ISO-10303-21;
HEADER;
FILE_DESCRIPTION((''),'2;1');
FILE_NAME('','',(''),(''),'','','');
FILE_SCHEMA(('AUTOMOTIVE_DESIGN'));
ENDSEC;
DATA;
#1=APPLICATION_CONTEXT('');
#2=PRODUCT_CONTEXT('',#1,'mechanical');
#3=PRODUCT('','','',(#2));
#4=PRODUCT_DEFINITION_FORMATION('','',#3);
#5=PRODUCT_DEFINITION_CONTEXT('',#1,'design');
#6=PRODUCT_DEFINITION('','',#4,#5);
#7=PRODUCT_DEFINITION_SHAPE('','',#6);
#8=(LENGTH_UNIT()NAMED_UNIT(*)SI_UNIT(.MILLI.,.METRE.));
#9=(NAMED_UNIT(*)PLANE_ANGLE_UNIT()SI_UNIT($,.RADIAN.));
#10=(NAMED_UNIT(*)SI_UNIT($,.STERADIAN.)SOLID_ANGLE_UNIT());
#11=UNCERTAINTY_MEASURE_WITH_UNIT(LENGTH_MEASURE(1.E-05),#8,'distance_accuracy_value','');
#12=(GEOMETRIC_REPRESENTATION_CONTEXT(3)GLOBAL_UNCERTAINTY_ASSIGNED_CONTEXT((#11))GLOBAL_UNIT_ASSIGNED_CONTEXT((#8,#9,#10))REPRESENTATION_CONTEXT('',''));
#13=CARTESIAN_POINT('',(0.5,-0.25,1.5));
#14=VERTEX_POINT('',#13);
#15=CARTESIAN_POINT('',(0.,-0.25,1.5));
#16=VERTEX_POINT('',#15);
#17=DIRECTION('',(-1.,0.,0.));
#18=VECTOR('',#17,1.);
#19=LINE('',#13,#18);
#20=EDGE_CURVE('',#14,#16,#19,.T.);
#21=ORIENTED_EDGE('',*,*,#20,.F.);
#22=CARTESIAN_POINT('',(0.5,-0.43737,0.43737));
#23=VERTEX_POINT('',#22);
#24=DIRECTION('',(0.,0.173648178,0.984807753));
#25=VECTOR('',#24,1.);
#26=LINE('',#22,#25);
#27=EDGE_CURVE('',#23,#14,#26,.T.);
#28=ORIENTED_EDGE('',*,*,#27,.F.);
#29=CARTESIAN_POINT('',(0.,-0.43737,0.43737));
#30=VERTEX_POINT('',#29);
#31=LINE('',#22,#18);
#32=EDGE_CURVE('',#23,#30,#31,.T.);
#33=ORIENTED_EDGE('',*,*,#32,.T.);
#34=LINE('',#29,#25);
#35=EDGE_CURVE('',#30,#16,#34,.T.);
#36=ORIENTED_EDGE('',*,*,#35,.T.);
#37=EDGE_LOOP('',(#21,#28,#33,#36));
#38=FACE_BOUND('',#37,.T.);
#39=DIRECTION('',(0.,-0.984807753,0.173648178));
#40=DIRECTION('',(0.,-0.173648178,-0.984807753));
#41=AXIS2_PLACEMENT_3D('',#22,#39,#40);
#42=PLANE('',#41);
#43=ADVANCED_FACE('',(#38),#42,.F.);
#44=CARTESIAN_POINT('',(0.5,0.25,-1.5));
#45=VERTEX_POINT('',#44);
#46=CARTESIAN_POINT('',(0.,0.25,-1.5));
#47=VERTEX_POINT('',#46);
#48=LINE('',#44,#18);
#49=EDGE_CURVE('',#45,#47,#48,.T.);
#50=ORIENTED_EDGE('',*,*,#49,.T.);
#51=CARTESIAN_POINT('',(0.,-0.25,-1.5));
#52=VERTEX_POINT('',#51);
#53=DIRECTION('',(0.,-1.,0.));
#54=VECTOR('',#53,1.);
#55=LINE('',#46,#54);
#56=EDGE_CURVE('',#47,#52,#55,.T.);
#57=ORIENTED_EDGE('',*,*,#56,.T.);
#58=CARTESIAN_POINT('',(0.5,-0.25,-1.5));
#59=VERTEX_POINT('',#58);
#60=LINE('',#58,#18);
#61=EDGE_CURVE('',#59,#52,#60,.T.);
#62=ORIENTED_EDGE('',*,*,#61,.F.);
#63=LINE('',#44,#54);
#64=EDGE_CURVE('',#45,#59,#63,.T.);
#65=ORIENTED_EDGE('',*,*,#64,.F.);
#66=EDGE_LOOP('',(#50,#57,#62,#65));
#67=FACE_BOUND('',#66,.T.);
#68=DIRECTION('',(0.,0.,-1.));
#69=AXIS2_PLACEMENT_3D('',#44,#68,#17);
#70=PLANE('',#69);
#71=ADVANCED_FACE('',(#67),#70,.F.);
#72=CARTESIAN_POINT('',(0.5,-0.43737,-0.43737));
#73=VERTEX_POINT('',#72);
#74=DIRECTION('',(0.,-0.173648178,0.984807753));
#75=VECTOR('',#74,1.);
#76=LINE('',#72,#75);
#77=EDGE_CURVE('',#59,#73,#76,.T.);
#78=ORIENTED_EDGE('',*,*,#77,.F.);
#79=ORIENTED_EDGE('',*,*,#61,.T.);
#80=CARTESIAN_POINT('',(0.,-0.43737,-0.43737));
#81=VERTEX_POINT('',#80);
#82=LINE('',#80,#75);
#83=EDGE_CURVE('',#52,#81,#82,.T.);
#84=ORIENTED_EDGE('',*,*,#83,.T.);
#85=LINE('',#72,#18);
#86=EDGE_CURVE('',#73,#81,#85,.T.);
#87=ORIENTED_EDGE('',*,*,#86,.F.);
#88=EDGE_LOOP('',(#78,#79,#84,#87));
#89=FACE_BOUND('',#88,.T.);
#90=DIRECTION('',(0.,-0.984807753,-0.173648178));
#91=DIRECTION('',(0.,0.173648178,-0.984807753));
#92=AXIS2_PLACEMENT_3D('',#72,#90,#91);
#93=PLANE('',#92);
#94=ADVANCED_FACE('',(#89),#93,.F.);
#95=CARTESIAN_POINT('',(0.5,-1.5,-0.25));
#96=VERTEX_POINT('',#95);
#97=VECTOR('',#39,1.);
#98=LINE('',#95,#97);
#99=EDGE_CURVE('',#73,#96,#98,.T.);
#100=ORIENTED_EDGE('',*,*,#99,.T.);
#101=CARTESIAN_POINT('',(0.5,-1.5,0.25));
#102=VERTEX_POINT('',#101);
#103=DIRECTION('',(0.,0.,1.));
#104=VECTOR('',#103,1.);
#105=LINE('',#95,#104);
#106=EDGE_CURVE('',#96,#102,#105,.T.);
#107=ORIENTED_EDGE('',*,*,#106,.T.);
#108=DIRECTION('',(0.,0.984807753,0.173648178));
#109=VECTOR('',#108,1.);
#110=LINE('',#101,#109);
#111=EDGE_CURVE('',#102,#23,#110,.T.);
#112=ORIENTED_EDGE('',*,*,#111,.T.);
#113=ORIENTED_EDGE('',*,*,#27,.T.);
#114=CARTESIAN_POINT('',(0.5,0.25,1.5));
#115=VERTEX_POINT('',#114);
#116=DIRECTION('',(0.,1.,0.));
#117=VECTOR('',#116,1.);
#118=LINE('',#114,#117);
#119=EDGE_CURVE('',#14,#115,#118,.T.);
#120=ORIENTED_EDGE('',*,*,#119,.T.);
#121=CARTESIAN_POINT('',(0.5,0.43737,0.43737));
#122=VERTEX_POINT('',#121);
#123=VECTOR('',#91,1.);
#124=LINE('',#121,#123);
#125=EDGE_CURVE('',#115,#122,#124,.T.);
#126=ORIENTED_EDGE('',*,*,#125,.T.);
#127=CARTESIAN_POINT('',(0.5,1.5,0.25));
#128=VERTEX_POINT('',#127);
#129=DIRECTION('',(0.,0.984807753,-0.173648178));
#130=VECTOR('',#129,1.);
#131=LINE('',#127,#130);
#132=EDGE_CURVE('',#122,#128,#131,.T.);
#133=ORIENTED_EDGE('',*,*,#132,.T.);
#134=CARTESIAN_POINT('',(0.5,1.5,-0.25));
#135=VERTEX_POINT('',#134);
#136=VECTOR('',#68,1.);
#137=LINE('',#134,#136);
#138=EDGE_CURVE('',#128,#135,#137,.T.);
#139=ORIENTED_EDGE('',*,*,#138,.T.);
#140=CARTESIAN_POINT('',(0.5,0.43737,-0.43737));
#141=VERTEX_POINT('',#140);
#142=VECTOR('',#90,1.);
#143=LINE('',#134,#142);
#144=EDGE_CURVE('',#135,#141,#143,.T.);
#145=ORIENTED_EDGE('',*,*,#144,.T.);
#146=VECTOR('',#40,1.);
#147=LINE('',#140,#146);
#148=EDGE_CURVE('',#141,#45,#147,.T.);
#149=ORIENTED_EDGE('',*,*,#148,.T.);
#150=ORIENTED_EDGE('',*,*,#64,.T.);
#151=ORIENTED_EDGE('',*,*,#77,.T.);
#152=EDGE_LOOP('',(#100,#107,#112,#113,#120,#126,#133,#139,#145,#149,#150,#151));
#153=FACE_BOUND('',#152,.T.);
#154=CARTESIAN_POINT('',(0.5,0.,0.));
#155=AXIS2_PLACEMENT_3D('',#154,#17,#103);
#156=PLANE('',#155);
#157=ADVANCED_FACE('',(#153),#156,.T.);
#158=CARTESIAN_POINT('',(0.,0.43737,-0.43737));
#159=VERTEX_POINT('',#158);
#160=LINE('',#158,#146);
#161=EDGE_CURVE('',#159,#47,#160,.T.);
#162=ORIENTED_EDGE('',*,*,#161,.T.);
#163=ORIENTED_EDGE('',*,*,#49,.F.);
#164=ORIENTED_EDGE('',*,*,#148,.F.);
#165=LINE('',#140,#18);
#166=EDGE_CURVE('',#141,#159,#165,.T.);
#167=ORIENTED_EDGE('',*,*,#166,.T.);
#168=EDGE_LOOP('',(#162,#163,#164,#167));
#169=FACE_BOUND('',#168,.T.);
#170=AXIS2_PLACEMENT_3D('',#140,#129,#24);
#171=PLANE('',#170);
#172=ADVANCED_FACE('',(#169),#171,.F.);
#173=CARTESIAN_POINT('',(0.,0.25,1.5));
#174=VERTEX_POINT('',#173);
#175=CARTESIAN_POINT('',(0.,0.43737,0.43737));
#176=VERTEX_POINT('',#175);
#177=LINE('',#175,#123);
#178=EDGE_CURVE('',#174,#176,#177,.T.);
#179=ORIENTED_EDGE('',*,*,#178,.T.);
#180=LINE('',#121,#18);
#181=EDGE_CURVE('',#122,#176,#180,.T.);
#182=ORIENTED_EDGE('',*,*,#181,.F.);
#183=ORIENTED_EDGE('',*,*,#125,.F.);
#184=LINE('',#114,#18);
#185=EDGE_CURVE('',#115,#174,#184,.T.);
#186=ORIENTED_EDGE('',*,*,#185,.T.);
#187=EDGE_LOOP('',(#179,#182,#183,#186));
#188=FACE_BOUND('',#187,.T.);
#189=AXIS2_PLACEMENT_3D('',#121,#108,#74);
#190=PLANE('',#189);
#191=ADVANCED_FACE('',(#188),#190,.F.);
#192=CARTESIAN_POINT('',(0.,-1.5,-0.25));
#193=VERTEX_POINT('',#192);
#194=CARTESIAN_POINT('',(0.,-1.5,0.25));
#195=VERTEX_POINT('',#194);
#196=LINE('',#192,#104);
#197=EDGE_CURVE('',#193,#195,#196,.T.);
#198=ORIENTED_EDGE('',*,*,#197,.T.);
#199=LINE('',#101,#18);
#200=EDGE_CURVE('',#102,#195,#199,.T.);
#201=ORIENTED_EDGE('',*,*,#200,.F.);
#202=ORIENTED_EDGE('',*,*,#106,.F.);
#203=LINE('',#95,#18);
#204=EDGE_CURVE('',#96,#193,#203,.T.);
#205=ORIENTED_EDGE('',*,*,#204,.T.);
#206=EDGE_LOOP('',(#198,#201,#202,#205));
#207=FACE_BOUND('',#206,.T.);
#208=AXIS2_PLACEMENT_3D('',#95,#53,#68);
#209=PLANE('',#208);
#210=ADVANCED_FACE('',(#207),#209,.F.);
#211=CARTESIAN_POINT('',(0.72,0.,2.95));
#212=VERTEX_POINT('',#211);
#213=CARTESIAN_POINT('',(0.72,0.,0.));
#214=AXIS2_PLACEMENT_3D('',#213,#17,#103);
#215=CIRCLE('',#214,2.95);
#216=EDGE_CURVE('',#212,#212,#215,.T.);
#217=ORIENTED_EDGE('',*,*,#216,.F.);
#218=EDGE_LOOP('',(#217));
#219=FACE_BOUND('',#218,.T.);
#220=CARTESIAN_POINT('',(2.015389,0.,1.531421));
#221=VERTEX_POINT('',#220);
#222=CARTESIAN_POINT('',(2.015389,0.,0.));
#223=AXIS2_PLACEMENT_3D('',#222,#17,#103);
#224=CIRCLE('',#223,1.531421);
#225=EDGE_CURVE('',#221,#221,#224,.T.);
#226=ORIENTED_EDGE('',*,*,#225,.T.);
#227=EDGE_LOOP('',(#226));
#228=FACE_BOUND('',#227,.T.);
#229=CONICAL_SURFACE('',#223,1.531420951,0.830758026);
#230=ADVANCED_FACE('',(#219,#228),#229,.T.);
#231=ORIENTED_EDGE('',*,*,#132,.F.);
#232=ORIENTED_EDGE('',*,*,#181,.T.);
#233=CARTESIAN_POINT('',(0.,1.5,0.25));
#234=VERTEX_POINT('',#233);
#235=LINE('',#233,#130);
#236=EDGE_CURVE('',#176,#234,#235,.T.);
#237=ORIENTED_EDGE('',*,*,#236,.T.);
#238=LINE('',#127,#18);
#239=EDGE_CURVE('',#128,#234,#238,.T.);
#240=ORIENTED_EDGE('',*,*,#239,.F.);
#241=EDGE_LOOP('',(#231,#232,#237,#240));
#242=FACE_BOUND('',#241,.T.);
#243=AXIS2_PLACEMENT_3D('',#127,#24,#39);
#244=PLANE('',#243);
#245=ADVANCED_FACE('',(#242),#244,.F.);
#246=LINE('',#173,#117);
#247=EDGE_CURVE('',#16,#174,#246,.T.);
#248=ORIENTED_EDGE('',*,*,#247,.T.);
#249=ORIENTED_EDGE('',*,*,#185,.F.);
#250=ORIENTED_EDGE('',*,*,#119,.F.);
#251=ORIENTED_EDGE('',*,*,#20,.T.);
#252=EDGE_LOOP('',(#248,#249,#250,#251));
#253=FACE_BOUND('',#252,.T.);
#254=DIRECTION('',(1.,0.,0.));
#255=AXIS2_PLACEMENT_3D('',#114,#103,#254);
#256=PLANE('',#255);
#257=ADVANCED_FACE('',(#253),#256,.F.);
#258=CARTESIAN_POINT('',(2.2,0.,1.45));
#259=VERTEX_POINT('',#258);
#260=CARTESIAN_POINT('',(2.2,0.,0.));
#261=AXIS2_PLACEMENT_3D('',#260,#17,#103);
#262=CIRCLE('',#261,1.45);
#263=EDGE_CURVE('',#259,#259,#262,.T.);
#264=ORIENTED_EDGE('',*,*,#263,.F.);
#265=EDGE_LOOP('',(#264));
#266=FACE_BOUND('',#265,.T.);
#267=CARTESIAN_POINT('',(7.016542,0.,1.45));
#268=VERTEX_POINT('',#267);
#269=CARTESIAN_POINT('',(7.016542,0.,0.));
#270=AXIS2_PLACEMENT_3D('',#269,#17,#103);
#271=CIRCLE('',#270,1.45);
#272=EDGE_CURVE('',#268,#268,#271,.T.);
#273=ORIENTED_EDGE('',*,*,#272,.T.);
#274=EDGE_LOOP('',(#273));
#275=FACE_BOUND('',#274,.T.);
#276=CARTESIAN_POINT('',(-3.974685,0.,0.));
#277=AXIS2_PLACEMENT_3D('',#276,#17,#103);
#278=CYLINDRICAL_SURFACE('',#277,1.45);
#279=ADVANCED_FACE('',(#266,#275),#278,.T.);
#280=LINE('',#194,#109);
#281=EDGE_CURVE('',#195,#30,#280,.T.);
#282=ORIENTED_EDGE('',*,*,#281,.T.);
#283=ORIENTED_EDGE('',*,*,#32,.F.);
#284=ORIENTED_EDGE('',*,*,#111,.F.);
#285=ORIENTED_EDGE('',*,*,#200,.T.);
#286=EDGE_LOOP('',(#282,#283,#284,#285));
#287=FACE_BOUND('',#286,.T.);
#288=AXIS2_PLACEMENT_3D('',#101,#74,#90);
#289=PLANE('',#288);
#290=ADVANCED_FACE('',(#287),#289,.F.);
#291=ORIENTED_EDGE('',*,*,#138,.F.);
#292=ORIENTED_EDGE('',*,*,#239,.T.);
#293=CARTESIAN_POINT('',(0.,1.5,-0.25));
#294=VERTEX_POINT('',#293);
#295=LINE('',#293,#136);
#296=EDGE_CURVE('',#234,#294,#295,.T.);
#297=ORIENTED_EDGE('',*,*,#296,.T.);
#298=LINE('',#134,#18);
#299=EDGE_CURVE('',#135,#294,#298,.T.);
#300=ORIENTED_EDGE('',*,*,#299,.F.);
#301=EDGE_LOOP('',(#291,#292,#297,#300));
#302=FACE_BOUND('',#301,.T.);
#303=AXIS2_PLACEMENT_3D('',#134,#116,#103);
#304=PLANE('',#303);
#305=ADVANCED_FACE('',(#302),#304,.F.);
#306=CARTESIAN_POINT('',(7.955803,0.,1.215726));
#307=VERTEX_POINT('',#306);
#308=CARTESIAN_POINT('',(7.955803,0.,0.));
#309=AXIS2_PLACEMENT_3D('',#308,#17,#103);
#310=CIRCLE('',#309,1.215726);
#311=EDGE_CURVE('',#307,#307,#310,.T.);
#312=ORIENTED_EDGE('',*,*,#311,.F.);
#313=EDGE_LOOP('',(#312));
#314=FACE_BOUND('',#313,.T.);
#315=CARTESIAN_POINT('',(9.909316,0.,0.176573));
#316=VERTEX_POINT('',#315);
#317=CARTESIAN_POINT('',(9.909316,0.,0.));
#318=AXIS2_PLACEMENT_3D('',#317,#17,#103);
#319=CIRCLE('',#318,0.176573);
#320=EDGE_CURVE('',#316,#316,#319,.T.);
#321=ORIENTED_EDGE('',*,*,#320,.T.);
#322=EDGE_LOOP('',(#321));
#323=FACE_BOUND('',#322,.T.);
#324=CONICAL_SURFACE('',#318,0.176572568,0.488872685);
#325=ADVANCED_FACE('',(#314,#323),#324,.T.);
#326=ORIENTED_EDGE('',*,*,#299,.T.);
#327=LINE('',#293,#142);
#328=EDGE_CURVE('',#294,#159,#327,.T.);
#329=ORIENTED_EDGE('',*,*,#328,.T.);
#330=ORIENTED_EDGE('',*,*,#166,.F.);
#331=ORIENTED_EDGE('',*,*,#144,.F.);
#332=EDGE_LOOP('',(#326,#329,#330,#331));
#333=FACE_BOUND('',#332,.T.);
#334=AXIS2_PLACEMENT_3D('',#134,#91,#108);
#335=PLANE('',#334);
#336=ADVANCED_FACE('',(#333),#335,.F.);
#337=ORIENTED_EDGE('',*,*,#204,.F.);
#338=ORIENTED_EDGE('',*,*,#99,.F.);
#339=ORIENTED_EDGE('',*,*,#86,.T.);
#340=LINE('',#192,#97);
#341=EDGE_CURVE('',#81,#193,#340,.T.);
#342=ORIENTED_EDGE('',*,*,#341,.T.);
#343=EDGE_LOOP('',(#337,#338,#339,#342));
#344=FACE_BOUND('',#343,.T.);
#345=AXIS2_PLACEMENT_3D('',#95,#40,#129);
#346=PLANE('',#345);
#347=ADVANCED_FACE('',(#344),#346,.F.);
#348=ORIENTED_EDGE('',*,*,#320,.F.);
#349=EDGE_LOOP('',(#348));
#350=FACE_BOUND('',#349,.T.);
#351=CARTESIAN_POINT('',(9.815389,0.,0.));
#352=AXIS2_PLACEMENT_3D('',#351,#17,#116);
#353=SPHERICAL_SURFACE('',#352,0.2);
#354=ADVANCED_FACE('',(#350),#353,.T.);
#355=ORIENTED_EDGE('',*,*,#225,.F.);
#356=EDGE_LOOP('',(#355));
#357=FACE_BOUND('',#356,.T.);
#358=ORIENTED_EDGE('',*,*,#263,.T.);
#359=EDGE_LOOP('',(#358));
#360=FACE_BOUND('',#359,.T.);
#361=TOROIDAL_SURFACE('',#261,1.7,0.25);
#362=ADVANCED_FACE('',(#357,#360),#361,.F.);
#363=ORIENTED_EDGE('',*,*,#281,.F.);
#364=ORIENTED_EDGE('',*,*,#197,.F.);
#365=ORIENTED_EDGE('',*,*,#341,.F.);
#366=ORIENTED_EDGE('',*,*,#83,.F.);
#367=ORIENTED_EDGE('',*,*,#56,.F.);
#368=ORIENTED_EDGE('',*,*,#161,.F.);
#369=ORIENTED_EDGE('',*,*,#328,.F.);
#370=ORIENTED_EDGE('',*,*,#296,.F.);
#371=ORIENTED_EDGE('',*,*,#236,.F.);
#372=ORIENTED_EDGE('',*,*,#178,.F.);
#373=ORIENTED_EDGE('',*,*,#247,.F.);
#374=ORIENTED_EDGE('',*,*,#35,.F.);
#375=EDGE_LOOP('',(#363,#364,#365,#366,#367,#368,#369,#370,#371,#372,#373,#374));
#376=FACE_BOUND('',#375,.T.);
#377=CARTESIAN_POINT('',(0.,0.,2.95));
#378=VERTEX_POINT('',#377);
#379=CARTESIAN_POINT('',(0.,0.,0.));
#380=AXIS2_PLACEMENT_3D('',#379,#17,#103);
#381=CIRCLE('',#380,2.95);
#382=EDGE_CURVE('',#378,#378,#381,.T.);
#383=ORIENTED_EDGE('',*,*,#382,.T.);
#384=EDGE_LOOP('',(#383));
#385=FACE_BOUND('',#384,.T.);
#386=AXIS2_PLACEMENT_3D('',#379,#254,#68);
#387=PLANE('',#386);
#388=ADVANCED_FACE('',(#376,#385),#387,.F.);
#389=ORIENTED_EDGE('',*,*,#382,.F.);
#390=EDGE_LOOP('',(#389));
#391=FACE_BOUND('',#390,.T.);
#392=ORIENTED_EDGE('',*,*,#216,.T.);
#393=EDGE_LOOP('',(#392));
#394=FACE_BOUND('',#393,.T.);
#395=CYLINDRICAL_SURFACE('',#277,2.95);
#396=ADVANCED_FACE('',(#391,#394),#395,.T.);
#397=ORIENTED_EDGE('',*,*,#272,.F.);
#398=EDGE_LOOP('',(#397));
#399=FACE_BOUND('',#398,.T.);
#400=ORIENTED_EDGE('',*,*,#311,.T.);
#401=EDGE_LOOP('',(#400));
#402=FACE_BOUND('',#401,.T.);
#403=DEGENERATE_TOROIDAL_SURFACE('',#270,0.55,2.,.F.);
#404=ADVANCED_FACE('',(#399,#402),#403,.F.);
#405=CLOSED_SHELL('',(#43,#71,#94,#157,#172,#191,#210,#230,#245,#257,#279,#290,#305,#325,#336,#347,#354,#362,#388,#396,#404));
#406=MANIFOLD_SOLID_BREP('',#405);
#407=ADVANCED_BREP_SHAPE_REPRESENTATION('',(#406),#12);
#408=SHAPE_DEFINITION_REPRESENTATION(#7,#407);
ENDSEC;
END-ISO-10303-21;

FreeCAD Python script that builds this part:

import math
import FreeCAD as App
import Part
import Sketcher
Q = App.Units.Quantity

doc = App.newDocument("Part")
body = doc.addObject("PartDesign::Body", "Body")

sketch1 = body.newObject("Sketcher::SketchObject", "Sketch")
sketch1.AttachmentSupport = (doc.getObject("XY_Plane"), [""])
sketch1.MapMode = "FlatFace"
sketch1.addGeometry([
    Part.LineSegment(App.Vector(0, 2.95, 0), App.Vector(0, 0, 0)),
    Part.LineSegment(App.Vector(0, 0, 0), App.Vector(10.02, 0, 0)),
    Part.ArcOfCircle(Part.Circle(App.Vector(9.82, 0, 0), App.Vector(0, 0, 1), 0.2), math.radians(0), math.radians(62)),
    Part.LineSegment(App.Vector(9.91, 0.18, 0), App.Vector(7.96, 1.22, 0)),
    Part.ArcOfCircle(Part.Circle(App.Vector(7.02, -0.55, 0), App.Vector(0, 0, 1), 2), math.radians(62), math.radians(90)),
    Part.LineSegment(App.Vector(7.02, 1.45, 0), App.Vector(2.2, 1.45, 0)),
    Part.ArcOfCircle(Part.Circle(App.Vector(2.2, 1.7, 0), App.Vector(0, 0, 1), 0.25), math.radians(-138), math.radians(-90)),
    Part.LineSegment(App.Vector(2.02, 1.53, 0), App.Vector(0.72, 2.95, 0)),
    Part.LineSegment(App.Vector(0.72, 2.95, 0), App.Vector(0, 2.95, 0)),
], False)
sketch1.addConstraint([
    Sketcher.Constraint("Coincident", 0, 2, 1, 1),
    Sketcher.Constraint("Coincident", 1, 2, 2, 1),
    Sketcher.Constraint("Tangent", 2, 2, 3, 1),
    Sketcher.Constraint("Tangent", 3, 2, 4, 1),
    Sketcher.Constraint("Tangent", 4, 2, 5, 1),
    Sketcher.Constraint("Tangent", 5, 2, 6, 2),
    Sketcher.Constraint("Tangent", 6, 1, 7, 1),
    Sketcher.Constraint("Coincident", 7, 2, 8, 1),
    Sketcher.Constraint("Coincident", 8, 2, 0, 1),
    Sketcher.Constraint("Vertical", 0),
    Sketcher.Constraint("Horizontal", 1),
    Sketcher.Constraint("Horizontal", 5),
    Sketcher.Constraint("Horizontal", 8),
    Sketcher.Constraint("Coincident", 0, 2, -1, 1),
    Sketcher.Constraint("PointOnObject", 2, 3, -1),
    Sketcher.Constraint("Radius", 4, 2.0),
    Sketcher.Constraint("Radius", 2, 0.2),
    Sketcher.Constraint("Radius", 6, 0.25),
    Sketcher.Constraint("DistanceX", 8, 2, 8, 1, 0.72),
    Sketcher.Constraint("DistanceY", 0, 2, 0, 1, 2.95),
    Sketcher.Constraint("DistanceX", -1, 1, 6, 3, 2.2),
    Sketcher.Constraint("DistanceY", -1, 1, 6, 3, 1.7),
    Sketcher.Constraint("Distance", 3, 2.212702),
    Sketcher.Constraint("DistanceX", 1, 1, 1, 2, 10.015389),
])
revolution = body.newObject("PartDesign::Revolution", "Revolution")
revolution.Profile = sketch1
revolution.ReferenceAxis = (sketch1, ["H_Axis"])
revolution.Angle = 360

sketch2 = body.newObject("Sketcher::SketchObject", "Sketch001")
sketch2.AttachmentSupport = (doc.getObject("YZ_Plane"), [""])
sketch2.MapMode = "FlatFace"
sketch2.addGeometry([
    Part.LineSegment(App.Vector(1.5, 0.2, 0), App.Vector(1.5, -0.2, 0)),
    Part.LineSegment(App.Vector(1.5, -0.2, 0), App.Vector(0.4, -0.4, 0)),
    Part.LineSegment(App.Vector(0.4, -0.4, 0), App.Vector(0.2, -1.5, 0)),
    Part.LineSegment(App.Vector(0.2, -1.5, 0), App.Vector(-0.2, -1.5, 0)),
    Part.LineSegment(App.Vector(-0.2, -1.5, 0), App.Vector(-0.4, -0.4, 0)),
    Part.LineSegment(App.Vector(-0.4, -0.4, 0), App.Vector(-1.5, -0.2, 0)),
    Part.LineSegment(App.Vector(-1.5, -0.2, 0), App.Vector(-1.5, 0.2, 0)),
    Part.LineSegment(App.Vector(-1.5, 0.2, 0), App.Vector(-0.4, 0.4, 0)),
    Part.LineSegment(App.Vector(-0.4, 0.4, 0), App.Vector(-0.2, 1.5, 0)),
    Part.LineSegment(App.Vector(-0.2, 1.5, 0), App.Vector(0.2, 1.5, 0)),
    Part.LineSegment(App.Vector(0.2, 1.5, 0), App.Vector(0.4, 0.4, 0)),
    Part.LineSegment(App.Vector(0.4, 0.4, 0), App.Vector(1.5, 0.2, 0)),
], False)
sketch2.addConstraint([
    Sketcher.Constraint("Coincident", 0, 2, 1, 1),
    Sketcher.Constraint("Coincident", 1, 2, 2, 1),
    Sketcher.Constraint("Coincident", 2, 2, 3, 1),
    Sketcher.Constraint("Coincident", 3, 2, 4, 1),
    Sketcher.Constraint("Coincident", 4, 2, 5, 1),
    Sketcher.Constraint("Coincident", 5, 2, 6, 1),
    Sketcher.Constraint("Coincident", 6, 2, 7, 1),
    Sketcher.Constraint("Coincident", 7, 2, 8, 1),
    Sketcher.Constraint("Coincident", 8, 2, 9, 1),
    Sketcher.Constraint("Coincident", 9, 2, 10, 1),
    Sketcher.Constraint("Coincident", 10, 2, 11, 1),
    Sketcher.Constraint("Coincident", 11, 2, 0, 1),
    Sketcher.Constraint("Vertical", 0),
    Sketcher.Constraint("Horizontal", 3),
    Sketcher.Constraint("Vertical", 6),
    Sketcher.Constraint("Horizontal", 9),
    Sketcher.Constraint("Symmetric", 0, 2, 6, 2, -1, 1),
    Sketcher.Constraint("Symmetric", 1, 2, 7, 2, -1, 1),
    Sketcher.Constraint("Symmetric", 2, 2, 8, 2, -1, 1),
    Sketcher.Constraint("Symmetric", 4, 2, 10, 2, -1, 1),
    Sketcher.Constraint("Symmetric", 1, 2, 4, 2, -2),
    Sketcher.Constraint("Perpendicular", 1, 4),
    Sketcher.Constraint("Perpendicular", 2, 5),
    Sketcher.Constraint("Perpendicular", 7, 10),
    Sketcher.Constraint("Perpendicular", 8, 11),
    Sketcher.Constraint("Horizontal", 0, 2, 5, 2),
    Sketcher.Constraint("Equal", 9, 0),
    Sketcher.Constraint("Equal", 1, 2),
    Sketcher.Constraint("Angle", 1, Q("-170 deg")),
    Sketcher.Constraint("DistanceX", 3, 2, 3, 1, 0.5),
    Sketcher.Constraint("DistanceX", 5, 2, 0, 2, 3.0),
])
pocket1 = body.newObject("PartDesign::Pocket", "Pocket")
pocket1.Profile = sketch2
pocket1.Length = 0.5
pocket1.Reversed = True

doc.recompute()
